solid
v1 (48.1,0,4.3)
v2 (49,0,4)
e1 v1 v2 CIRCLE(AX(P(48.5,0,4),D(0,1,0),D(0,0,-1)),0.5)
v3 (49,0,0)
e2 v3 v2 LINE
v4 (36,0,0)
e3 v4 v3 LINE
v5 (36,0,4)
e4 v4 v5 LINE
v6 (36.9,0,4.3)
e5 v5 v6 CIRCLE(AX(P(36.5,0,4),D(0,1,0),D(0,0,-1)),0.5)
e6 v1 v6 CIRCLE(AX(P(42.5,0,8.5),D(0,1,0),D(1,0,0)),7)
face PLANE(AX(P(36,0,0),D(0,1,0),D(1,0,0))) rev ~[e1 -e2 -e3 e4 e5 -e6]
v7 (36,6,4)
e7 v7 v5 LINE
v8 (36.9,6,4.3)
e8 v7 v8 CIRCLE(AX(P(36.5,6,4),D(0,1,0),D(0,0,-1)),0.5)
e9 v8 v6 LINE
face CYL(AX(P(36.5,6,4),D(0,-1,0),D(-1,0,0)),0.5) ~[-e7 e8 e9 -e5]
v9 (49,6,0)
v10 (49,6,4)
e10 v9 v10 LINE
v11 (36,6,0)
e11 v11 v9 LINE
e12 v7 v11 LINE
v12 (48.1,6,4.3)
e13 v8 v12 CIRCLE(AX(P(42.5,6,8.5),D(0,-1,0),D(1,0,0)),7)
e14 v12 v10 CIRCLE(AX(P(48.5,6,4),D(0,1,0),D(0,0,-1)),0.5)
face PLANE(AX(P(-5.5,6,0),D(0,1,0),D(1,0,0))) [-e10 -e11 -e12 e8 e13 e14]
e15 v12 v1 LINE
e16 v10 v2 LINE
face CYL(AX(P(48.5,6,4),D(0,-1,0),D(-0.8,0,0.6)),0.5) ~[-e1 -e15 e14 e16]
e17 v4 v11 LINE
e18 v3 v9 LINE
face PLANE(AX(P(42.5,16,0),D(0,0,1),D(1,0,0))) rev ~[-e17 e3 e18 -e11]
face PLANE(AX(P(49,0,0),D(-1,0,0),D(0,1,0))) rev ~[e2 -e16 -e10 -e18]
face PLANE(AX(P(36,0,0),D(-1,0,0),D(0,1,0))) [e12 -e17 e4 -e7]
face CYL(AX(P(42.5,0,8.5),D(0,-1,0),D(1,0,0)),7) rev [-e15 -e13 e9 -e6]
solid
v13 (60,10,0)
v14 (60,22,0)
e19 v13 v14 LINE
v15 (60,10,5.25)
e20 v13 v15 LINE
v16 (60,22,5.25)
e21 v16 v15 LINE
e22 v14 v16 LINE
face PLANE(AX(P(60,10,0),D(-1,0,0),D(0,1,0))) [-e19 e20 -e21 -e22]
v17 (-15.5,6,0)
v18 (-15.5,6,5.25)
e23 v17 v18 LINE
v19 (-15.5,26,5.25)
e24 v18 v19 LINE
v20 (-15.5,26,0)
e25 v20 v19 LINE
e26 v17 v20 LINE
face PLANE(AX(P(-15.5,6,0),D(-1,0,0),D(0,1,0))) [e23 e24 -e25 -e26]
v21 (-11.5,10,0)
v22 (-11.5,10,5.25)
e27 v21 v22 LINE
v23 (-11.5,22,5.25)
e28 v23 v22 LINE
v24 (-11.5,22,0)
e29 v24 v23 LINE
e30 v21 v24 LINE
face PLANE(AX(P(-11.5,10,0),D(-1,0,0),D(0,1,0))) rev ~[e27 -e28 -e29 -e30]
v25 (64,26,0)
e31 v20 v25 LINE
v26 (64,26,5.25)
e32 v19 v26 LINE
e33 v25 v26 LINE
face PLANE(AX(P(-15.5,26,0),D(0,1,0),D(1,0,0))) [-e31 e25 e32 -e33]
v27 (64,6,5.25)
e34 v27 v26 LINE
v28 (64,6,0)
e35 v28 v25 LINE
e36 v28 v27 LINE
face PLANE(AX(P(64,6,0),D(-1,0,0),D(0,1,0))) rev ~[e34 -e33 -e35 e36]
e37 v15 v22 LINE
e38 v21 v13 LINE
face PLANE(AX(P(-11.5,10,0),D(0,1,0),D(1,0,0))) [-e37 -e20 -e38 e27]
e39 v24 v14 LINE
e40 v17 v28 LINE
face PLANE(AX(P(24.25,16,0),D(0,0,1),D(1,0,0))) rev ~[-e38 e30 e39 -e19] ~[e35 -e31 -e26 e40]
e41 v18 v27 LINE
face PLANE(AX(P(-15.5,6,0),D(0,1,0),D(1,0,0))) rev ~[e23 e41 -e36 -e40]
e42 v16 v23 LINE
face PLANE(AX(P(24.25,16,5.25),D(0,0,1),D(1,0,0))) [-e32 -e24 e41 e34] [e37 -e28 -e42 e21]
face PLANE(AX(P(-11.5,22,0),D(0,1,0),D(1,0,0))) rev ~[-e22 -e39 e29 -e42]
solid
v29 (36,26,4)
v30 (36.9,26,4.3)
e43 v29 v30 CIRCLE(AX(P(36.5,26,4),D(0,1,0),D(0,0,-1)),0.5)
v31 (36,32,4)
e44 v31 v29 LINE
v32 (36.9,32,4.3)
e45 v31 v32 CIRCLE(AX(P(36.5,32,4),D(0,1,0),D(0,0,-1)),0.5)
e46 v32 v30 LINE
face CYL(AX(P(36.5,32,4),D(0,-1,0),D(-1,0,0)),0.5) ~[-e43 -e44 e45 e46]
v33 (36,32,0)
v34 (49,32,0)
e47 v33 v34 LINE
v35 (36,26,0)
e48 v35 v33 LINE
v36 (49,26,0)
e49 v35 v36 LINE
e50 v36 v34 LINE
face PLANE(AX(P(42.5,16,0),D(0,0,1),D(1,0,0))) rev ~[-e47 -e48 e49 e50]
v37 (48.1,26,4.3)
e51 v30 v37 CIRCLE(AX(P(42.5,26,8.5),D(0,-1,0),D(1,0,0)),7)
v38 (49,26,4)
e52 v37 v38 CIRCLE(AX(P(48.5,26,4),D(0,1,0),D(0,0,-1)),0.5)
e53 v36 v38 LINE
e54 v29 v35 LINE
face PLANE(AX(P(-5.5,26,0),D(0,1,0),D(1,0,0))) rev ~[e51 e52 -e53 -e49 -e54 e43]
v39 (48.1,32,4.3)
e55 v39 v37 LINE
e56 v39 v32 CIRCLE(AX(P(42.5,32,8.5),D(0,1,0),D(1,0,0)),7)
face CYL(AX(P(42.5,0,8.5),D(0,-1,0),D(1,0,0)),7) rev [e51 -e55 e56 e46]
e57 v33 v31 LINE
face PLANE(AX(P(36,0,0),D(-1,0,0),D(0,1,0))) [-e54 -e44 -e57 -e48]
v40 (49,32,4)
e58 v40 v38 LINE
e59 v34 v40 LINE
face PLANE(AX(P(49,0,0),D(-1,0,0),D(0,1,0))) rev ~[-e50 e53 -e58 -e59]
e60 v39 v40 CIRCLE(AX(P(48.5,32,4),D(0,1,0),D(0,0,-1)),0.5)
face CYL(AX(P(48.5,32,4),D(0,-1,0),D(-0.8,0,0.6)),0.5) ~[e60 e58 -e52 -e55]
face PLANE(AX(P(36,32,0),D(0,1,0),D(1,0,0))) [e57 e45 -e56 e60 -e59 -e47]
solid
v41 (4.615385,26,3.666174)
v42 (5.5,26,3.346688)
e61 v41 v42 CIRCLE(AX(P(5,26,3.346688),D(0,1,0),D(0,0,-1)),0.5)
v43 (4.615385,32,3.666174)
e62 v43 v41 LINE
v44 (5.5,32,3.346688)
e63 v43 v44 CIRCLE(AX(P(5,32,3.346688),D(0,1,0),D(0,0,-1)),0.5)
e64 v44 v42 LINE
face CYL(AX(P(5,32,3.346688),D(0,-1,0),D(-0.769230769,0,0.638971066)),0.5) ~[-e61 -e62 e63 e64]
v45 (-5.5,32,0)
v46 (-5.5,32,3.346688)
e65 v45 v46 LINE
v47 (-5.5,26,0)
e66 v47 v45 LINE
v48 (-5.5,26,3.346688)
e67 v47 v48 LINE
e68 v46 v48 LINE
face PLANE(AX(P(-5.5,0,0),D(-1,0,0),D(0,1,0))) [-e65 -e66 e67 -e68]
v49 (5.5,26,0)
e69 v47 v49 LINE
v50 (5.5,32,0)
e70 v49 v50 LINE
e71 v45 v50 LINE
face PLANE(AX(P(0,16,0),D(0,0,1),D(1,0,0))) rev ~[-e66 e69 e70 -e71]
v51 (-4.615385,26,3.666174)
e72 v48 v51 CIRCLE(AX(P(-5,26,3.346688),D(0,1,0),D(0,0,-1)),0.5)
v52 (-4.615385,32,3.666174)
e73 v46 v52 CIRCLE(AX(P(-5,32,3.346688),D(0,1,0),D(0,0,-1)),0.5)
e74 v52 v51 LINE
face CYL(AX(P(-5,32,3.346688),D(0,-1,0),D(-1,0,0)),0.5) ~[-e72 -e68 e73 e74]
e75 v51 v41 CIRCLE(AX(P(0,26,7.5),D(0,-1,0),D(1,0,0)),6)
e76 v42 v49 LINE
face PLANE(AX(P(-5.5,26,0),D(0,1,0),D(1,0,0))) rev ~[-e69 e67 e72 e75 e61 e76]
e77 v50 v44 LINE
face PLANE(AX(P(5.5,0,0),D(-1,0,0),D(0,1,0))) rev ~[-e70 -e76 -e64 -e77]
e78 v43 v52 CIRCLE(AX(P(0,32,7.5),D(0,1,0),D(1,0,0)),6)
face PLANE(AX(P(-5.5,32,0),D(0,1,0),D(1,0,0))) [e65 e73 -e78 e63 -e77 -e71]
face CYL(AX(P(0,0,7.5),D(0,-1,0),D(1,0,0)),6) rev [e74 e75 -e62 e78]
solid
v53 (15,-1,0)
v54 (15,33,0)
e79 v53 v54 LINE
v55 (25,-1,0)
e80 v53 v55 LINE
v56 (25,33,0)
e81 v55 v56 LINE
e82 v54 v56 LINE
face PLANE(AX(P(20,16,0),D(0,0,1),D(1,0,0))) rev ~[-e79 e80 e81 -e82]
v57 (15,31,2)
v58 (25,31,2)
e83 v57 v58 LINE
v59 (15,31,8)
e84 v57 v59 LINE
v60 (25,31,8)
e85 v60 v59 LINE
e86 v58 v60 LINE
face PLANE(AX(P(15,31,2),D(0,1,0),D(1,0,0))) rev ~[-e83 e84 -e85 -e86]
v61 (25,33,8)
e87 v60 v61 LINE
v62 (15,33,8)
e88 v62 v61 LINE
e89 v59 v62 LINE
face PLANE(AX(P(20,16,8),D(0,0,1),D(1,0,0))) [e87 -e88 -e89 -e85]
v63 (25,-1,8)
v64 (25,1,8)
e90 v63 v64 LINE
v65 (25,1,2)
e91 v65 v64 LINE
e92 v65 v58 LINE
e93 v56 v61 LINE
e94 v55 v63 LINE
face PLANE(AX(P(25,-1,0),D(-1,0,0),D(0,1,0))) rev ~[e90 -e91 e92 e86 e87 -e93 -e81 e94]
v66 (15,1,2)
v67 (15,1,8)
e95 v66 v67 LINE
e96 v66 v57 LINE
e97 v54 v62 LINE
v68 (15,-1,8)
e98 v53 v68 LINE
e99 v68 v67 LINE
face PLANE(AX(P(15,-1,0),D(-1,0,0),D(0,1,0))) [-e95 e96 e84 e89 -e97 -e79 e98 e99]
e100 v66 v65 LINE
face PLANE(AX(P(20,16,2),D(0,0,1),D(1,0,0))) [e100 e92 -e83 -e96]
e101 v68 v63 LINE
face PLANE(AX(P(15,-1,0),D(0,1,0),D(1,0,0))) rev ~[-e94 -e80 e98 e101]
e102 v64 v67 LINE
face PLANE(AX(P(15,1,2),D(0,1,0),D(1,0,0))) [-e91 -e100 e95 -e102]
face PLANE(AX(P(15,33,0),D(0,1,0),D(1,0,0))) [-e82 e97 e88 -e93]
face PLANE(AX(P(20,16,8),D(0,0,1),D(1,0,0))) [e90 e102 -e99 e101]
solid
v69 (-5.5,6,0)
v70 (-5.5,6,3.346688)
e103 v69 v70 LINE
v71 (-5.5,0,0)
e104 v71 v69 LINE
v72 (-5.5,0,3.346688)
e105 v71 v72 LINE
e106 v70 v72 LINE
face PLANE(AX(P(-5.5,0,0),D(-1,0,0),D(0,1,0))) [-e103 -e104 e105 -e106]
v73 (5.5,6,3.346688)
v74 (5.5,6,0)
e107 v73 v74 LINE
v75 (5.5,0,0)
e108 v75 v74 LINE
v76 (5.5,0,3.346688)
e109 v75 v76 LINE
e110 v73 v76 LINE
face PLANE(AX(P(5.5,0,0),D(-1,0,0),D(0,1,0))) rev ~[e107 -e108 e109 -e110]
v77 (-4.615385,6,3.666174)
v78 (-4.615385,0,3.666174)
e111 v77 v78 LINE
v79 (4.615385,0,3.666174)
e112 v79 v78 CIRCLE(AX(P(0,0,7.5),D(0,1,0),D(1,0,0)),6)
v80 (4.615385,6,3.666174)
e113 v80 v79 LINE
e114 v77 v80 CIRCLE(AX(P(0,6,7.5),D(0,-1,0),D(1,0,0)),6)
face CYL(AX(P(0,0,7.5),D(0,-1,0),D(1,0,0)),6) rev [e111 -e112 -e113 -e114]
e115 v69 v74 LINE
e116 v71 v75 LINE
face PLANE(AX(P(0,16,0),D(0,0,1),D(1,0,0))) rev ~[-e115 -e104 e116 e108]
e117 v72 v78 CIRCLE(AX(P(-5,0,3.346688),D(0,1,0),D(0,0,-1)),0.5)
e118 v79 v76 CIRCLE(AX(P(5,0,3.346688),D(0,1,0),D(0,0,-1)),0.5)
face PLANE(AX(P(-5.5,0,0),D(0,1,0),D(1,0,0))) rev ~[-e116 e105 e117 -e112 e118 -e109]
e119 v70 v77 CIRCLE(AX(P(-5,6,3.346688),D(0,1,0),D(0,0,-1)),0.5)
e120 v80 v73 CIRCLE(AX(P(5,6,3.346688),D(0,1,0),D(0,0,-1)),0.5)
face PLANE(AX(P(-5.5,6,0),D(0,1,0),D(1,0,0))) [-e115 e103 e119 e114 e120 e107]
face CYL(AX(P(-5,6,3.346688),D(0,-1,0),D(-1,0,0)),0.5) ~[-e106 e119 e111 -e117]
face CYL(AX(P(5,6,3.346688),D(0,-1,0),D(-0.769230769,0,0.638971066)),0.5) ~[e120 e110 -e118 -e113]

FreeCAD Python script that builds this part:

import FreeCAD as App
import Part
import Sketcher
Q = App.Units.Quantity


def edges_at(feature, points):
    """Names of the edges that pass closest to the given points."""
    edges = feature.Shape.Edges
    near = lambda p: min(range(len(edges)), key=lambda i: edges[i].distToShape(Part.Vertex(*p))[0])
    return sorted({f"Edge{near(p) + 1}" for p in points})


def add_polygon(sketch, points):
    """Adds a closed chain of lines whose ends are joined by coincident constraints."""
    first, n = sketch.GeometryCount, len(points)
    for a, b in zip(points, points[1:] + points[:1]):
        sketch.addGeometry(Part.LineSegment(App.Vector(*a, 0), App.Vector(*b, 0)), False)
    for i in range(n):
        sketch.addConstraint(Sketcher.Constraint("Coincident", first + i, 2, first + (i + 1) % n, 1))

doc = App.newDocument("Part")
body = doc.addObject("PartDesign::Body", "Body")

sketch1 = body.newObject("Sketcher::SketchObject", "Sketch")
sketch1.AttachmentSupport = (doc.getObject("XY_Plane"), [""])
sketch1.MapMode = "FlatFace"
add_polygon(sketch1, [(-12, 22), (-12, 10), (60, 10), (60, 22)])
sketch1.addConstraint([
    Sketcher.Constraint("Vertical", 0),
    Sketcher.Constraint("Horizontal", 1),
    Sketcher.Constraint("Vertical", 2),
    Sketcher.Constraint("Horizontal", 3),
    Sketcher.Constraint("DistanceY", 0, 2, 0, 1, Q("12 mm")),
    Sketcher.Constraint("DistanceX", 1, 1, 1, 2, Q("71.5 mm")),
    Sketcher.Constraint("DistanceY", -1, 1, 0, 2, Q("10 mm")),
    Sketcher.Constraint("DistanceX", -1, 1, 1, 2, Q("60 mm")),
])
pad1 = body.newObject("PartDesign::Pad", "Pad")
pad1.Profile = sketch1
pad1.Length = 5.75
body2 = doc.addObject("PartDesign::Body", "Body001")

sketch2 = body2.newObject("Sketcher::SketchObject", "Sketch001")
sketch2.AttachmentSupport = (doc.getObject("XY_Plane001"), [""])
sketch2.MapMode = "FlatFace"
add_polygon(sketch2, [(-16, 26), (-16, 6), (64, 6), (64, 26)])
sketch2.addConstraint([
    Sketcher.Constraint("Vertical", 0),
    Sketcher.Constraint("Horizontal", 1),
    Sketcher.Constraint("Vertical", 2),
    Sketcher.Constraint("Horizontal", 3),
    Sketcher.Constraint("DistanceY", 0, 2, 0, 1, Q("20 mm")),
    Sketcher.Constraint("DistanceX", 1, 1, 1, 2, Q("79.5 mm")),
    Sketcher.Constraint("DistanceY", -1, 1, 0, 2, Q("6 mm")),
    Sketcher.Constraint("DistanceX", -1, 1, 1, 2, Q("64 mm")),
])
pad2 = body2.newObject("PartDesign::Pad", "Pad001")
pad2.Profile = sketch2
pad2.Length = 5.25
doc.recompute()

boolean = body2.newObject("PartDesign::Boolean", "Boolean")
boolean.Type = "Cut"
boolean.addObjects([body])
body3 = doc.addObject("PartDesign::Body", "Body002")

sketch3 = body3.newObject("Sketcher::SketchObject", "Sketch002")
sketch3.AttachmentSupport = (doc.getObject("XY_Plane002"), [""])
sketch3.MapMode = "FlatFace"
add_polygon(sketch3, [(-6, 26), (-6, 6), (49, 6), (49, 26)])
sketch3.addConstraint([
    Sketcher.Constraint("Vertical", 0),
    Sketcher.Constraint("Horizontal", 1),
    Sketcher.Constraint("Vertical", 2),
    Sketcher.Constraint("Horizontal", 3),
    Sketcher.Constraint("DistanceY", 0, 2, 0, 1, Q("20 mm")),
    Sketcher.Constraint("DistanceX", 1, 1, 1, 2, Q("54.5 mm")),
    Sketcher.Constraint("DistanceY", -1, 1, 0, 2, Q("6 mm")),
    Sketcher.Constraint("DistanceX", -1, 1, 1, 2, Q("49 mm")),
])
pad3 = body3.newObject("PartDesign::Pad", "Pad002")
pad3.Profile = sketch3
pad3.Length = 10
body4 = doc.addObject("PartDesign::Body", "Body003")

sketch4 = body4.newObject("Sketcher::SketchObject", "Sketch003")
sketch4.AttachmentSupport = (doc.getObject("XZ_Plane003"), [""])
sketch4.MapMode = "FlatFace"
sketch4.addGeometry(Part.Circle(App.Vector(42, 8, 0), App.Vector(0, 0, 1), 7), False)
sketch4.addConstraint([
    Sketcher.Constraint("Diameter", 0, Q("14 mm")),
    Sketcher.Constraint("DistanceX", -1, 1, 0, 3, Q("42.5 mm")),
    Sketcher.Constraint("DistanceY", -1, 1, 0, 3, Q("8.5 mm")),
])
pad4 = body4.newObject("PartDesign::Pad", "Pad003")
pad4.Profile = sketch4
pad4.Length = 32
pad4.Reversed = True
body5 = doc.addObject("PartDesign::Body", "Body004")

sketch5 = body5.newObject("Sketcher::SketchObject", "Sketch004")
sketch5.AttachmentSupport = (doc.getObject("XY_Plane004"), [""])
sketch5.MapMode = "FlatFace"
add_polygon(sketch5, [(36, 32), (36, 0), (49, 0), (49, 32)])
sketch5.addConstraint([
    Sketcher.Constraint("Vertical", 0),
    Sketcher.Constraint("Horizontal", 1),
    Sketcher.Constraint("Vertical", 2),
    Sketcher.Constraint("Horizontal", 3),
    Sketcher.Constraint("PointOnObject", 0, 2, -1),
    Sketcher.Constraint("DistanceX", 1, 1, 1, 2, Q("13 mm")),
    Sketcher.Constraint("DistanceY", 0, 2, 0, 1, Q("32 mm")),
    Sketcher.Constraint("DistanceX", -1, 1, 0, 2, Q("36 mm")),
])
pad5 = body5.newObject("PartDesign::Pad", "Pad004")
pad5.Profile = sketch5
pad5.Length = 8
doc.recompute()

boolean2 = body5.newObject("PartDesign::Boolean", "Boolean001")
boolean2.Type = "Cut"
boolean2.addObjects([body4])
body6 = doc.addObject("PartDesign::Body", "Body005")

sketch6 = body6.newObject("Sketcher::SketchObject", "Sketch005")
sketch6.AttachmentSupport = (doc.getObject("XZ_Plane005"), [""])
sketch6.MapMode = "FlatFace"
sketch6.addGeometry(Part.Circle(App.Vector(0, 8, 0), App.Vector(0, 0, 1), 6), False)
sketch6.addConstraint([
    Sketcher.Constraint("PointOnObject", 0, 3, -2),
    Sketcher.Constraint("Diameter", 0, Q("12 mm")),
    Sketcher.Constraint("DistanceY", -1, 1, 0, 3, Q("7.5 mm")),
])
pad6 = body6.newObject("PartDesign::Pad", "Pad005")
pad6.Profile = sketch6
pad6.Length = 32
pad6.Reversed = True
body7 = doc.addObject("PartDesign::Body", "Body006")
body7.AllowCompound = True

sketch7 = body7.newObject("Sketcher::SketchObject", "Sketch006")
sketch7.AttachmentSupport = (doc.getObject("XY_Plane006"), [""])
sketch7.MapMode = "FlatFace"
add_polygon(sketch7, [(-6, 32), (-6, 0), (6, 0), (6, 32)])
sketch7.addConstraint([
    Sketcher.Constraint("Vertical", 0),
    Sketcher.Constraint("Horizontal", 1),
    Sketcher.Constraint("Vertical", 2),
    Sketcher.Constraint("Horizontal", 3),
    Sketcher.Constraint("Symmetric", 0, 2, 1, 2, -1, 1),
    Sketcher.Constraint("DistanceX", 1, 1, 1, 2, Q("11 mm")),
    Sketcher.Constraint("DistanceY", 0, 2, 0, 1, Q("32 mm")),
])
pad7 = body7.newObject("PartDesign::Pad", "Pad006")
pad7.Profile = sketch7
pad7.Length = 8
doc.recompute()

boolean3 = body7.newObject("PartDesign::Boolean", "Boolean002")
boolean3.Type = "Cut"
boolean3.addObjects([body6])
doc.recompute()

boolean4 = body7.newObject("PartDesign::Boolean", "Boolean003")
boolean4.Type = "Fuse"
boolean4.addObjects([body5])
doc.recompute()

boolean5 = body7.newObject("PartDesign::Boolean", "Boolean004")
boolean5.Type = "Cut"
boolean5.addObjects([body3])
doc.recompute()

fillet = body7.newObject("PartDesign::Fillet", "Fillet")
fillet.Base = (boolean5, edges_at(boolean5, [
    (-5.5, 3, 5.102),
    (5.5, 3, 5.102),
    (-5.5, 29, 5.102),
    (5.5, 29, 5.102),
    (36, 3, 5.902),
    (49, 3, 5.902),
    (36, 29, 5.902),
    (49, 29, 5.902),
]))
fillet.Radius = 0.5
body8 = doc.addObject("PartDesign::Body", "Body007")

sketch8 = body8.newObject("Sketcher::SketchObject", "Sketch007")
sketch8.AttachmentSupport = (doc.getObject("XY_Plane007"), [""])
sketch8.MapMode = "FlatFace"
sketch8.AttachmentOffset = App.Placement(App.Vector(0, 0, 2), App.Rotation())
add_polygon(sketch8, [(15, 31), (15, 1), (25, 1), (25, 31)])
sketch8.addConstraint([
    Sketcher.Constraint("Vertical", 0),
    Sketcher.Constraint("Horizontal", 1),
    Sketcher.Constraint("Vertical", 2),
    Sketcher.Constraint("Horizontal", 3),
    Sketcher.Constraint("DistanceX", 1, 1, 1, 2, Q("10 mm")),
    Sketcher.Constraint("DistanceY", 0, 2, 0, 1, Q("30 mm")),
    Sketcher.Constraint("DistanceX", -1, 1, 0, 2, Q("15 mm")),
    Sketcher.Constraint("DistanceY", -1, 1, 0, 2, Q("1 mm")),
])
pad8 = body8.newObject("PartDesign::Pad", "Pad007")
pad8.Profile = sketch8
pad8.Length = 8
body9 = doc.addObject("PartDesign::Body", "Body008")

sketch9 = body9.newObject("Sketcher::SketchObject", "Sketch008")
sketch9.AttachmentSupport = (doc.getObject("XY_Plane008"), [""])
sketch9.MapMode = "FlatFace"
add_polygon(sketch9, [(15, 33), (15, -1), (25, -1), (25, 33)])
sketch9.addConstraint([
    Sketcher.Constraint("Vertical", 0),
    Sketcher.Constraint("Horizontal", 1),
    Sketcher.Constraint("Vertical", 2),
    Sketcher.Constraint("Horizontal", 3),
    Sketcher.Constraint("DistanceX", 1, 1, 1, 2, Q("10 mm")),
    Sketcher.Constraint("DistanceY", 0, 2, 0, 1, Q("34 mm")),
    Sketcher.Constraint("DistanceX", -1, 1, 0, 2, Q("15 mm")),
    Sketcher.Constraint("DistanceY", 0, 2, -1, 1, Q("1 mm")),
])
pad9 = body9.newObject("PartDesign::Pad", "Pad008")
pad9.Profile = sketch9
pad9.Length = 8
doc.recompute()

boolean6 = body9.newObject("PartDesign::Boolean", "Boolean005")
boolean6.Type = "Cut"
boolean6.addObjects([body8])

doc.recompute()
